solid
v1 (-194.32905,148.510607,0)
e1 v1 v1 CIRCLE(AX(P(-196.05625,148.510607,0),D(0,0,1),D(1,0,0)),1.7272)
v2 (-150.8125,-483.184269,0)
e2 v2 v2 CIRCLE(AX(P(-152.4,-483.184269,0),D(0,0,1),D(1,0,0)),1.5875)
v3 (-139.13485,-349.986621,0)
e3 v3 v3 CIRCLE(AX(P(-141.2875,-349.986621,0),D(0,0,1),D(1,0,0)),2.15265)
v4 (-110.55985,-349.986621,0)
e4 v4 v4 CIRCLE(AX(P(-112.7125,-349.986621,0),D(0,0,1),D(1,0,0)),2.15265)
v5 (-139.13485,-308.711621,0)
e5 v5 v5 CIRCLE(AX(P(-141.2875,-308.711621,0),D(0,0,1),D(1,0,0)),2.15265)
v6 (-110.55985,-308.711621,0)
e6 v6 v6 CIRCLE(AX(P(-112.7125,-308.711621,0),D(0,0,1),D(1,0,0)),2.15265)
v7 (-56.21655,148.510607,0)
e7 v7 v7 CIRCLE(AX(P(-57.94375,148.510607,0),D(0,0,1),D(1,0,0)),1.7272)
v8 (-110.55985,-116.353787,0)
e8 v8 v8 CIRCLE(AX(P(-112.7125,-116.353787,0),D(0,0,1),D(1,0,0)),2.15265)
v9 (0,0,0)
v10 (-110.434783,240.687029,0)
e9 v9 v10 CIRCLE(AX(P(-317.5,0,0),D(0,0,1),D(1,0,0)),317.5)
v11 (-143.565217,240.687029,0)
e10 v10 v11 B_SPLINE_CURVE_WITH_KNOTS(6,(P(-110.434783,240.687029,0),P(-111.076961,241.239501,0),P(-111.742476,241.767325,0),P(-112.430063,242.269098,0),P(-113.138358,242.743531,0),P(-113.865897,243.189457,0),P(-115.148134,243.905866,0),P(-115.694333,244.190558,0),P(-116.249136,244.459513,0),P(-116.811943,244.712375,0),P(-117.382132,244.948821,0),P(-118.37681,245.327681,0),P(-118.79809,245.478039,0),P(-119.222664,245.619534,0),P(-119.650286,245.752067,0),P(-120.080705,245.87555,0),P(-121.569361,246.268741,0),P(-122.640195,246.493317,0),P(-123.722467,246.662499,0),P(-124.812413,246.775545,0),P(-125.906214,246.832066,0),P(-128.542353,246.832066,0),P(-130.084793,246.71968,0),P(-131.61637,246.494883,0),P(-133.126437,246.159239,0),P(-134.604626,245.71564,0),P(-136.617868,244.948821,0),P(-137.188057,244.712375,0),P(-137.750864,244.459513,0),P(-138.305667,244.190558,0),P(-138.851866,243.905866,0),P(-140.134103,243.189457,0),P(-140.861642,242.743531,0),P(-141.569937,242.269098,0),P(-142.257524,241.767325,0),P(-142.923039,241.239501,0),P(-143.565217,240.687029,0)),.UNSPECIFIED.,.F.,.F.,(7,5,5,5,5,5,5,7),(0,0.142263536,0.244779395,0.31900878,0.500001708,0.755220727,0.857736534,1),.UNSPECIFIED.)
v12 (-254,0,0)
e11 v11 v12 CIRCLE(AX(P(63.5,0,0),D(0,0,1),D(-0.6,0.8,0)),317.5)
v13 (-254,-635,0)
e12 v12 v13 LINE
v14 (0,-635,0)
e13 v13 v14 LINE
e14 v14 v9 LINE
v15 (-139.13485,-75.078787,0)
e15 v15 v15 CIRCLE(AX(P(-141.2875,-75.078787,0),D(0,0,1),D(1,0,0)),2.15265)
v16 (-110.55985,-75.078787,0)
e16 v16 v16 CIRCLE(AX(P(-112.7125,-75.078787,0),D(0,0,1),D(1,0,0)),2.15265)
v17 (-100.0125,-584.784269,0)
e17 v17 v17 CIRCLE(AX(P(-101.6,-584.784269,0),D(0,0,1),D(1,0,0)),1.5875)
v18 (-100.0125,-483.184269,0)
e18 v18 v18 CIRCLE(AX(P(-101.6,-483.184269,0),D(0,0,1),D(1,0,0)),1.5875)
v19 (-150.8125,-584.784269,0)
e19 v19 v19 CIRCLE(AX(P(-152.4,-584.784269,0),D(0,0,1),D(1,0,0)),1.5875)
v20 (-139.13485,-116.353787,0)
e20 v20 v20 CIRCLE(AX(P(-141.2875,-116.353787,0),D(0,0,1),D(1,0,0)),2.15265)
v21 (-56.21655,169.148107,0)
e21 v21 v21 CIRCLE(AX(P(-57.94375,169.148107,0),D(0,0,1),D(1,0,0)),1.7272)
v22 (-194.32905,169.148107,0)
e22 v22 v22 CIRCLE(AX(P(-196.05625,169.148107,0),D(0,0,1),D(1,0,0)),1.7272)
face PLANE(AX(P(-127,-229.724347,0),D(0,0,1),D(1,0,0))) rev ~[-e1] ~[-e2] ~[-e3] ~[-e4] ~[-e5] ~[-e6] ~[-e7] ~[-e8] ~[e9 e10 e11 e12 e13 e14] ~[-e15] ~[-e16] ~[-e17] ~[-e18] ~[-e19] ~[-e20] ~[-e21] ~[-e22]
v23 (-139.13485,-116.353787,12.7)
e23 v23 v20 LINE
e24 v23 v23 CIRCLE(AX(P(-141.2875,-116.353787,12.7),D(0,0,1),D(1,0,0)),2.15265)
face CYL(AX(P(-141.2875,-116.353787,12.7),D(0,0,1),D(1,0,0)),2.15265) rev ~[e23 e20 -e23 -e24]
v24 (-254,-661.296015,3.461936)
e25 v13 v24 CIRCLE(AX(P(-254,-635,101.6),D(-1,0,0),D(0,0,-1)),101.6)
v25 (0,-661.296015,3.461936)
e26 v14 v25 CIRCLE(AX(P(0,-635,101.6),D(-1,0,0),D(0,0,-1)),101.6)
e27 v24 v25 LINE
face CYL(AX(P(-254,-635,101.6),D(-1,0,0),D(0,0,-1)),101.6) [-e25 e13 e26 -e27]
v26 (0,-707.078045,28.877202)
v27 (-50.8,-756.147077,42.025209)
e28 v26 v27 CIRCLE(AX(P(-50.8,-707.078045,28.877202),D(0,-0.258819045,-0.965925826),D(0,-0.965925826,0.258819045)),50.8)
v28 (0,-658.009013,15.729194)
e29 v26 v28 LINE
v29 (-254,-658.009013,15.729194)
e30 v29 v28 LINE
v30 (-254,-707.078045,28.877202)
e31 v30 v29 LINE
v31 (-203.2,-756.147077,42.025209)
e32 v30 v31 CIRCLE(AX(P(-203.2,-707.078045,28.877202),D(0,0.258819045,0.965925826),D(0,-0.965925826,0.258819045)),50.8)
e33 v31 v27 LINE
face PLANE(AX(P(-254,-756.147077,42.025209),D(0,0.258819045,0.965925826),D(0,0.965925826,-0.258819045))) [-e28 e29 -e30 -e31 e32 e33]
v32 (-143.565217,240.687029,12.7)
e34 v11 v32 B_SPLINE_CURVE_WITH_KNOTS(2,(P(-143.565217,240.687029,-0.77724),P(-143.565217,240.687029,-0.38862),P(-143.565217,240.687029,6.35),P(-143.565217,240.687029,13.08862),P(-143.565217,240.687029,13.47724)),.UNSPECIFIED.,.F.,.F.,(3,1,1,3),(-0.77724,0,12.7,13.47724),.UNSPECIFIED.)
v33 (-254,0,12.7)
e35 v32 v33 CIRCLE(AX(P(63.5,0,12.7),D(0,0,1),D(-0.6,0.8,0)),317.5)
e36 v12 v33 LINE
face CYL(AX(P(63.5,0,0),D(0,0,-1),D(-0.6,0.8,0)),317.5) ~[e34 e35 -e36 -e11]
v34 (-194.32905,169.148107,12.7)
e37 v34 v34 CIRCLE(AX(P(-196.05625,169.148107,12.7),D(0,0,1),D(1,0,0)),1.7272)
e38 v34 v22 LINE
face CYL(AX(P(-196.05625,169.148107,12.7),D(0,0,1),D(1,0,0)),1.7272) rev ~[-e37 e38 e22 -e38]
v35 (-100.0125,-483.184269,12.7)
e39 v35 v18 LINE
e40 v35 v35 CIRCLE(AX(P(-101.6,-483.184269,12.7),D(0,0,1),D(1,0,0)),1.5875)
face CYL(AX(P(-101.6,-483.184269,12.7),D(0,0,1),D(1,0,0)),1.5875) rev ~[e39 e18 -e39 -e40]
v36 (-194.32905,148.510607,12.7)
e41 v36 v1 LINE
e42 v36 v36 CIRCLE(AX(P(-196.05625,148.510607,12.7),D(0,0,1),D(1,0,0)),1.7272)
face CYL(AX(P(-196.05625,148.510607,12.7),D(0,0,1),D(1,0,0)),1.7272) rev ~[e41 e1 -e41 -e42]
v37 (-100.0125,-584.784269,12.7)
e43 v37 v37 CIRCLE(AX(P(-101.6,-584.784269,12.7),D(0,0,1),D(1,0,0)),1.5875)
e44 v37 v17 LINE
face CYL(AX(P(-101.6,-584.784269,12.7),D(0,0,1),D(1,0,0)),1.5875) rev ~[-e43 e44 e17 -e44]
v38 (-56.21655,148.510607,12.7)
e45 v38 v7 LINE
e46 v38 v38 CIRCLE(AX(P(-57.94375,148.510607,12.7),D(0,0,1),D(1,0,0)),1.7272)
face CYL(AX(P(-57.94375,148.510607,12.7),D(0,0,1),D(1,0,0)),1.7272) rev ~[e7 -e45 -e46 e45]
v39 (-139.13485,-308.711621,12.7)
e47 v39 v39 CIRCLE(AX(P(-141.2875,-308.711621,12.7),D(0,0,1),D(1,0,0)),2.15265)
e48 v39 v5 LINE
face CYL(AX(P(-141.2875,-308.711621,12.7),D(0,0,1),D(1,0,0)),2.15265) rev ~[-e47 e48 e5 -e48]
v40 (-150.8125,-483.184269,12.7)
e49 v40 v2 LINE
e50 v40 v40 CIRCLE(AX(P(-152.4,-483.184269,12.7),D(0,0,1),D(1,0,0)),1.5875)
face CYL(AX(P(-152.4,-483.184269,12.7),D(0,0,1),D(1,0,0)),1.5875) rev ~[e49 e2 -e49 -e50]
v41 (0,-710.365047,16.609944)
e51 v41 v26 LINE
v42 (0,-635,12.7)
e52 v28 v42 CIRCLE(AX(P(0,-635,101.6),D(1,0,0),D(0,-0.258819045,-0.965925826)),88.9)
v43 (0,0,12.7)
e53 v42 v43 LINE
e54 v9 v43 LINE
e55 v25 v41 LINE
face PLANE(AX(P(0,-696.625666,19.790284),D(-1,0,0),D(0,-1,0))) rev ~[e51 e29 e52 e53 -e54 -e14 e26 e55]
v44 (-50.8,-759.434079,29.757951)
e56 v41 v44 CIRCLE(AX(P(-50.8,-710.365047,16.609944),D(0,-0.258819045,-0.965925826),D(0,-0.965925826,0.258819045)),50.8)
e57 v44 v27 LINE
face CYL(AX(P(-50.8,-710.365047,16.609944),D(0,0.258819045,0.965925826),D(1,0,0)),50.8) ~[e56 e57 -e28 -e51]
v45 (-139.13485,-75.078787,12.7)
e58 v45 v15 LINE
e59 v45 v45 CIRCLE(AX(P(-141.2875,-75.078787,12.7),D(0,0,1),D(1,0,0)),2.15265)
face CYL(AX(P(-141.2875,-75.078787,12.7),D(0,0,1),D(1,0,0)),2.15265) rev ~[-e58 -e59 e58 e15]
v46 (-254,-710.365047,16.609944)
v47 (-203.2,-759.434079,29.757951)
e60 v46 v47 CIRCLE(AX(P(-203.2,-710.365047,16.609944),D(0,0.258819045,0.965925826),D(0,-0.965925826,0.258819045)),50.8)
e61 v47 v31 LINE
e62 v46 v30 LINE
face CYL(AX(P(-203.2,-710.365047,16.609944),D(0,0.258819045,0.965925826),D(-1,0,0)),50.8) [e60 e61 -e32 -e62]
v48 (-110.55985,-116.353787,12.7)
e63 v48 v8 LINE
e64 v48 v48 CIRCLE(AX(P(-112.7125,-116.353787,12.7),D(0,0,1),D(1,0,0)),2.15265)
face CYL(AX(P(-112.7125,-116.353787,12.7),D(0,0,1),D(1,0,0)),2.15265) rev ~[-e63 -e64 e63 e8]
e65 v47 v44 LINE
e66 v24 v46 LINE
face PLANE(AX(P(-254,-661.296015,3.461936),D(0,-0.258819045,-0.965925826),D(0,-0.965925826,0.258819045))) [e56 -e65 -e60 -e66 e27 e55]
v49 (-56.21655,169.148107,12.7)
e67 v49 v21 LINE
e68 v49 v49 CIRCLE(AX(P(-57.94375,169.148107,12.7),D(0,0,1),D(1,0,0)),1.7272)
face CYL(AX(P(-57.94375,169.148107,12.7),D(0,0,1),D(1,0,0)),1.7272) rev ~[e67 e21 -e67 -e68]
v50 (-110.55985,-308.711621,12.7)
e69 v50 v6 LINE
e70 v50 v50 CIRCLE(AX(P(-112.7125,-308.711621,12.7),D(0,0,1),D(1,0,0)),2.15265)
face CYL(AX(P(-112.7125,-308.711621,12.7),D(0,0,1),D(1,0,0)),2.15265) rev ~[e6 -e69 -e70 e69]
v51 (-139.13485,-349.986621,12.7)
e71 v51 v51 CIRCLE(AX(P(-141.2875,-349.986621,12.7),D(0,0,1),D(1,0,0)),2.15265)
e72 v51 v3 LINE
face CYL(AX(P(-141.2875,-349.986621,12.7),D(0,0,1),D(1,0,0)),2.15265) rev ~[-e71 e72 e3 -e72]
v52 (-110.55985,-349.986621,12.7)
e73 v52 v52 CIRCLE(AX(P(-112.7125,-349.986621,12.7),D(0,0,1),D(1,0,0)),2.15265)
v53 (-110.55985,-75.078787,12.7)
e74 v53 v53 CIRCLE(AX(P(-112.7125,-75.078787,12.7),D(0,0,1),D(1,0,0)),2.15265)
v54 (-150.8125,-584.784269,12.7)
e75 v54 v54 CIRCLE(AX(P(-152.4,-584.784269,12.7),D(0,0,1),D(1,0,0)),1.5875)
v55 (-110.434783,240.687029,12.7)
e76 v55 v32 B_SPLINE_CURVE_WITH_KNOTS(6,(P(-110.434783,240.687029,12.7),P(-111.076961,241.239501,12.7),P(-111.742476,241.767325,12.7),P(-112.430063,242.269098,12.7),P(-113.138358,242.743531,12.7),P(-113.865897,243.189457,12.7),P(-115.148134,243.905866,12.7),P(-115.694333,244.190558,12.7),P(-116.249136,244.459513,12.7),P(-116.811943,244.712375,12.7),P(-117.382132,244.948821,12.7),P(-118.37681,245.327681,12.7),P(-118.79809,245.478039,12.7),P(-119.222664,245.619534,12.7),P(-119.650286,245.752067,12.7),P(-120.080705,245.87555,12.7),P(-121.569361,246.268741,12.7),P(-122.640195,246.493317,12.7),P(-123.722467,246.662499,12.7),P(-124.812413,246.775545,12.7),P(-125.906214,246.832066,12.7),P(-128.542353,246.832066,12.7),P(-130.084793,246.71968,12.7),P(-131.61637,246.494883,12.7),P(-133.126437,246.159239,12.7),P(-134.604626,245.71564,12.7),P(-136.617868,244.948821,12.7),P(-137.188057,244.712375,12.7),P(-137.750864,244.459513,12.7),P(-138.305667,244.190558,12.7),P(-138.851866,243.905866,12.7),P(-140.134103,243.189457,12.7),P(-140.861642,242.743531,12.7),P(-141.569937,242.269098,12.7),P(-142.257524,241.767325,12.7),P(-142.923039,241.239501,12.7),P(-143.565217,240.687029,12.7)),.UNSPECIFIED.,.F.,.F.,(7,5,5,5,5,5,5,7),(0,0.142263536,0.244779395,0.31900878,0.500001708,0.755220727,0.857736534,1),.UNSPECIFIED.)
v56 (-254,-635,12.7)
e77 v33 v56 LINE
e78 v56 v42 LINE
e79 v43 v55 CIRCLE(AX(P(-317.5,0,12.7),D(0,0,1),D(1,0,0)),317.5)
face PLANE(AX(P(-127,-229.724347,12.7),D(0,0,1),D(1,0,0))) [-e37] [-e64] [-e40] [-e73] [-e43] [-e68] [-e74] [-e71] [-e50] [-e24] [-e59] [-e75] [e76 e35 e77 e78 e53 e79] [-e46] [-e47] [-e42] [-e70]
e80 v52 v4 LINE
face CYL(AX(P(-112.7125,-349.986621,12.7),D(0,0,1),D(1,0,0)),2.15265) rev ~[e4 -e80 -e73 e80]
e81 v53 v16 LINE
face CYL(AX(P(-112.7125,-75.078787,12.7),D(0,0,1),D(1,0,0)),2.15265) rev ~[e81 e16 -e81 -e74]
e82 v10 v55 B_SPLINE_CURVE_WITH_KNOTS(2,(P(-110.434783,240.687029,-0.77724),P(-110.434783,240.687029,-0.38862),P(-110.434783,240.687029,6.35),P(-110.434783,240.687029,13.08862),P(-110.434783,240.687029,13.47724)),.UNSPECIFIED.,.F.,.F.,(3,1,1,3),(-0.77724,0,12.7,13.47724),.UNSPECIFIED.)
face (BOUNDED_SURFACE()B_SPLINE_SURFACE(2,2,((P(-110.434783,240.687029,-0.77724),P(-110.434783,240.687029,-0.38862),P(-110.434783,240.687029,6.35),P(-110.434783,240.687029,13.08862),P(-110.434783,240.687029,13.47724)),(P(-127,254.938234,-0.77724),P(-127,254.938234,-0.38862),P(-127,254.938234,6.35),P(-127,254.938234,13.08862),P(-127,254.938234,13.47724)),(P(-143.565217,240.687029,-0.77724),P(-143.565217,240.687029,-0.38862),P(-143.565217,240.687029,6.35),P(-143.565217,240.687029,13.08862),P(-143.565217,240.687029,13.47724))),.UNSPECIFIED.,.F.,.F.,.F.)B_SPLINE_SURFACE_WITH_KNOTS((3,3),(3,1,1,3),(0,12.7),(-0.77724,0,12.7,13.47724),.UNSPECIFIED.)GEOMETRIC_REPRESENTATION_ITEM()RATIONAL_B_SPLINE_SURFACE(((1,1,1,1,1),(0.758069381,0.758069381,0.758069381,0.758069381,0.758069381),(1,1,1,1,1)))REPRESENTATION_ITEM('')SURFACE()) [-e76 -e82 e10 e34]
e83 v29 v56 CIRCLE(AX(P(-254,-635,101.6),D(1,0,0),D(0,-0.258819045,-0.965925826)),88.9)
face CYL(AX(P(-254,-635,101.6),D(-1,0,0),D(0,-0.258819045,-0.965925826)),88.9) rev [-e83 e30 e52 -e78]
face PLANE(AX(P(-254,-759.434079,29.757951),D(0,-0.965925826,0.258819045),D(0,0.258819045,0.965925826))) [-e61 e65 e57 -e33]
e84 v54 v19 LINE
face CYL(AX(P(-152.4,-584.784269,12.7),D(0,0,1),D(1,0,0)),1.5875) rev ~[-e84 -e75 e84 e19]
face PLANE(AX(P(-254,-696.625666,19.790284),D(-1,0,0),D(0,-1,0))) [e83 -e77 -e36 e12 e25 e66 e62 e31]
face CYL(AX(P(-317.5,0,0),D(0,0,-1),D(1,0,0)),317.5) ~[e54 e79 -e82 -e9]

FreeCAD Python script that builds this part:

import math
import FreeCAD as App
import Part
import Sketcher

V = App.Vector
Q = App.Units.Quantity


def edges_at(feature, points):
    """Names of the edges that pass closest to the given points."""
    edges = feature.Shape.Edges
    near = lambda p: min(range(len(edges)), key=lambda i: edges[i].distToShape(Part.Vertex(*p))[0])
    return sorted({f"Edge{near(p) + 1}" for p in points})

doc = App.newDocument("Part")
body = doc.addObject("PartDesign::Body", "Body")

# Sketch on XY plane
sketch1 = body.newObject("Sketcher::SketchObject", "Sketch")
sketch1.AttachmentSupport = (doc.getObject("XY_Plane"), [""])
sketch1.MapMode = "FlatFace"
sketch1.addGeometry([
    Part.LineSegment(V(-254, -635, 0), V(0, -635, 0)),  # 0
    Part.LineSegment(V(0, -635, 0), V(0, 0, 0)),  # 1
    Part.ArcOfCircle(Part.Circle(V(-318, 0, 0), V(0, 0, 1), 318), math.radians(0), math.radians(53)),  # 2
    Part.ArcOfCircle(Part.Circle(V(64, 0, 0), V(0, 0, 1), 318), math.radians(127), math.radians(180)),  # 3
    Part.LineSegment(V(-254, 0, 0), V(-254, -635, 0)),  # 4
], False)
sketch1.addConstraint([
    Sketcher.Constraint("Coincident", 0, 2, 1, 1),
    Sketcher.Constraint("Tangent", 1, 2, 2, 1),
    Sketcher.Constraint("Coincident", 2, 2, 3, 1),
    Sketcher.Constraint("Tangent", 3, 2, 4, 1),
    Sketcher.Constraint("Coincident", 4, 2, 0, 1),
    Sketcher.Constraint("Horizontal", 0),
    Sketcher.Constraint("Vertical", 1),
    Sketcher.Constraint("Vertical", 4),
    Sketcher.Constraint("Coincident", 1, 2, -1, 1),
    Sketcher.Constraint("Equal", 2, 3),
    Sketcher.Constraint("PointOnObject", 3, 3, -1),
    Sketcher.Constraint("Radius", 2, Q("12.5 in")),
    Sketcher.Constraint("DistanceX", 0, 1, 0, 2, Q("10 in")),
    Sketcher.Constraint("DistanceY", 1, 1, 1, 2, Q("25 in")),
])
pad1 = body.newObject("PartDesign::Pad", "Pad")
pad1.Profile = sketch1
pad1.Length = Q("0.5 in")
doc.recompute()

fillet = body.newObject("PartDesign::Fillet", "Fillet")
fillet.Base = (pad1, edges_at(pad1, [(-127, 254, 6.35)]))
fillet.Radius = Q("1 in")

# Sketch on YZ plane
sketch2 = body.newObject("Sketcher::SketchObject", "Sketch001")
sketch2.AttachmentSupport = (doc.getObject("YZ_Plane"), [""])
sketch2.MapMode = "FlatFace"
sketch2.AttachmentOffset = App.Placement(V(0, 0, -10 * 25.4), App.Rotation())
sketch2.addGeometry([
    Part.ArcOfCircle(Part.Circle(V(-635, 102, 0), V(0, 0, 1), 89), math.radians(-105), math.radians(-90)),  # 0
    Part.LineSegment(V(-635, 13, 0), V(-635, 0, 0)),  # 1
    Part.ArcOfCircle(Part.Circle(V(-635, 102, 0), V(0, 0, 1), 102), math.radians(-105), math.radians(-90)),  # 2
    Part.LineSegment(V(-661, 3, 0), V(-759, 30, 0)),  # 3
    Part.LineSegment(V(-759, 30, 0), V(-756, 42, 0)),  # 4
    Part.LineSegment(V(-756, 42, 0), V(-658, 16, 0)),  # 5
], False)
sketch2.addConstraint([
    Sketcher.Constraint("Coincident", 0, 2, 1, 1),
    Sketcher.Constraint("Coincident", 1, 2, 2, 2),
    Sketcher.Constraint("Tangent", 2, 1, 3, 1),
    Sketcher.Constraint("Coincident", 3, 2, 4, 1),
    Sketcher.Constraint("Coincident", 4, 2, 5, 1),
    Sketcher.Constraint("Tangent", 5, 2, 0, 1),
    Sketcher.Constraint("Vertical", 1),
    Sketcher.Constraint("Coincident", 2, 3, 0, 3),
    Sketcher.Constraint("PointOnObject", 1, 2, -1),
    Sketcher.Constraint("Perpendicular", 3, 4),
    Sketcher.Constraint("Perpendicular", 4, 5),
    Sketcher.Constraint("Vertical", 2, 3, 0, 2),
    Sketcher.Constraint("Radius", 2, Q("4 in")),
    Sketcher.Constraint("Radius", 0, Q("3.5 in")),
    Sketcher.Constraint("Distance", 3, Q("4 in")),
    Sketcher.Constraint("DistanceX", 0, 3, -1, 1, Q("25 in")),
    Sketcher.Constraint("Angle", 3, Q("165 deg")),
])
pad2 = body.newObject("PartDesign::Pad", "Pad001")
pad2.Profile = sketch2
pad2.Length = Q("10 in")
doc.recompute()

fillet2 = body.newObject("PartDesign::Fillet", "Fillet001")
fillet2.Base = (pad2, edges_at(pad2, [(0, -757.791, 35.892), (-254, -757.791, 35.892)]))
fillet2.Radius = Q("2 in")

# Sketch on XY plane
sketch3 = body.newObject("Sketcher::SketchObject", "Sketch002")
sketch3.AttachmentSupport = (doc.getObject("XY_Plane"), [""])
sketch3.MapMode = "FlatFace"
sketch3.AttachmentOffset = App.Placement(V(0, 0, 0.5 * 25.4), App.Rotation())
sketch3.addGeometry([
    Part.Circle(V(-112.7, -308.7, 0), V(0, 0, 1), 2.2),  # 0
    Part.Circle(V(-141.3, -308.7, 0), V(0, 0, 1), 2.2),  # 1
    Part.Circle(V(-101.6, -584.8, 0), V(0, 0, 1), 1.6),  # 2
    Part.Circle(V(-152.4, -584.8, 0), V(0, 0, 1), 1.6),  # 3
    Part.Circle(V(-152.4, -483.2, 0), V(0, 0, 1), 1.6),  # 4
    Part.Circle(V(-101.6, -483.2, 0), V(0, 0, 1), 1.6),  # 5
    Part.Circle(V(-141.3, -75.1, 0), V(0, 0, 1), 2.2),  # 6
    Part.Circle(V(-112.7, -75.1, 0), V(0, 0, 1), 2.2),  # 7
    Part.Circle(V(-112.7, -116.4, 0), V(0, 0, 1), 2.2),  # 8
    Part.Circle(V(-141.3, -116.4, 0), V(0, 0, 1), 2.2),  # 9
    Part.Circle(V(-141.3, -350, 0), V(0, 0, 1), 2.2),  # 10
    Part.Circle(V(-112.7, -350, 0), V(0, 0, 1), 2.2),  # 11
    Part.Circle(V(-57.9, 169.1, 0), V(0, 0, 1), 1.7),  # 12
    Part.Circle(V(-57.9, 148.5, 0), V(0, 0, 1), 1.7),  # 13
    Part.Circle(V(-196.1, 148.5, 0), V(0, 0, 1), 1.7),  # 14
    Part.Circle(V(-196.1, 169.1, 0), V(0, 0, 1), 1.7),  # 15
], False)
sketch3.addConstraint([
    Sketcher.Constraint("Equal", 0, 1),
    Sketcher.Constraint("Equal", 2, 3),
    Sketcher.Constraint("Equal", 3, 4),
    Sketcher.Constraint("Equal", 4, 5),
    Sketcher.Constraint("Equal", 1, 6),
    Sketcher.Constraint("Equal", 6, 7),
    Sketcher.Constraint("Equal", 7, 8),
    Sketcher.Constraint("Equal", 8, 9),
    Sketcher.Constraint("Equal", 9, 10),
    Sketcher.Constraint("Equal", 10, 11),
    Sketcher.Constraint("Equal", 12, 13),
    Sketcher.Constraint("Equal", 13, 14),
    Sketcher.Constraint("Equal", 14, 15),
    Sketcher.Constraint("Horizontal", 0, 3, 1, 3),
    Sketcher.Constraint("Horizontal", 2, 3, 3, 3),
    Sketcher.Constraint("Horizontal", 4, 3, 5, 3),
    Sketcher.Constraint("Horizontal", 6, 3, 7, 3),
    Sketcher.Constraint("Horizontal", 8, 3, 9, 3),
    Sketcher.Constraint("Horizontal", 10, 3, 11, 3),
    Sketcher.Constraint("Horizontal", 13, 3, 14, 3),
    Sketcher.Constraint("Horizontal", 12, 3, 15, 3),
    Sketcher.Constraint("Vertical", 3, 3, 4, 3),
    Sketcher.Constraint("Vertical", 2, 3, 5, 3),
    Sketcher.Constraint("Vertical", 1, 3, 6, 3),
    Sketcher.Constraint("Vertical", 0, 3, 7, 3),
    Sketcher.Constraint("Vertical", 7, 3, 8, 3),
    Sketcher.Constraint("Vertical", 6, 3, 9, 3),
    Sketcher.Constraint("Vertical", 9, 3, 10, 3),
    Sketcher.Constraint("Vertical", 8, 3, 11, 3),
    Sketcher.Constraint("Vertical", 12, 3, 13, 3),
    Sketcher.Constraint("Vertical", 14, 3, 15, 3),
    Sketcher.Constraint("Diameter", 2, Q("0.125 in")),
    Sketcher.Constraint("Diameter", 12, Q("0.136 in")),
    Sketcher.Constraint("DistanceX", 2, 3, -1, 1, Q("4 in")),
    Sketcher.Constraint("DistanceX", 3, 3, -1, 1, Q("6 in")),
    Sketcher.Constraint("DistanceY", 3, 3, 4, 3, Q("4 in")),
    Sketcher.Constraint("Diameter", 0, Q("0.1695 in")),
    Sketcher.Constraint("DistanceX", 0, 3, -1, 1, Q("4.4375 in")),
    Sketcher.Constraint("DistanceX", 1, 3, -1, 1, Q("5.5625 in")),
    Sketcher.Constraint("DistanceX", 12, 3, -1, 1, Q("2.28125 in")),
    Sketcher.Constraint("DistanceX", 14, 3, -1, 1, Q("7.71875 in")),
    Sketcher.Constraint("DistanceY", 8, 3, 7, 3, Q("1.625 in")),
    Sketcher.Constraint("DistanceY", 10, 3, 1, 3, Q("1.625 in")),
    Sketcher.Constraint("DistanceY", 13, 3, 12, 3, Q("0.8125 in")),
    Sketcher.Constraint("DistanceY", 0, 3, -1, 1, 308.711621),
    Sketcher.Constraint("DistanceY", 2, 3, -1, 1, 584.784269),
    Sketcher.Constraint("DistanceY", 0, 3, 12, 3, 477.859728),
    Sketcher.Constraint("DistanceY", 6, 3, -1, 1, 75.078787),
])
pocket1 = body.newObject("PartDesign::Pocket", "Pocket")
pocket1.Profile = sketch3
pocket1.Type = "ThroughAll"

doc.recompute()
